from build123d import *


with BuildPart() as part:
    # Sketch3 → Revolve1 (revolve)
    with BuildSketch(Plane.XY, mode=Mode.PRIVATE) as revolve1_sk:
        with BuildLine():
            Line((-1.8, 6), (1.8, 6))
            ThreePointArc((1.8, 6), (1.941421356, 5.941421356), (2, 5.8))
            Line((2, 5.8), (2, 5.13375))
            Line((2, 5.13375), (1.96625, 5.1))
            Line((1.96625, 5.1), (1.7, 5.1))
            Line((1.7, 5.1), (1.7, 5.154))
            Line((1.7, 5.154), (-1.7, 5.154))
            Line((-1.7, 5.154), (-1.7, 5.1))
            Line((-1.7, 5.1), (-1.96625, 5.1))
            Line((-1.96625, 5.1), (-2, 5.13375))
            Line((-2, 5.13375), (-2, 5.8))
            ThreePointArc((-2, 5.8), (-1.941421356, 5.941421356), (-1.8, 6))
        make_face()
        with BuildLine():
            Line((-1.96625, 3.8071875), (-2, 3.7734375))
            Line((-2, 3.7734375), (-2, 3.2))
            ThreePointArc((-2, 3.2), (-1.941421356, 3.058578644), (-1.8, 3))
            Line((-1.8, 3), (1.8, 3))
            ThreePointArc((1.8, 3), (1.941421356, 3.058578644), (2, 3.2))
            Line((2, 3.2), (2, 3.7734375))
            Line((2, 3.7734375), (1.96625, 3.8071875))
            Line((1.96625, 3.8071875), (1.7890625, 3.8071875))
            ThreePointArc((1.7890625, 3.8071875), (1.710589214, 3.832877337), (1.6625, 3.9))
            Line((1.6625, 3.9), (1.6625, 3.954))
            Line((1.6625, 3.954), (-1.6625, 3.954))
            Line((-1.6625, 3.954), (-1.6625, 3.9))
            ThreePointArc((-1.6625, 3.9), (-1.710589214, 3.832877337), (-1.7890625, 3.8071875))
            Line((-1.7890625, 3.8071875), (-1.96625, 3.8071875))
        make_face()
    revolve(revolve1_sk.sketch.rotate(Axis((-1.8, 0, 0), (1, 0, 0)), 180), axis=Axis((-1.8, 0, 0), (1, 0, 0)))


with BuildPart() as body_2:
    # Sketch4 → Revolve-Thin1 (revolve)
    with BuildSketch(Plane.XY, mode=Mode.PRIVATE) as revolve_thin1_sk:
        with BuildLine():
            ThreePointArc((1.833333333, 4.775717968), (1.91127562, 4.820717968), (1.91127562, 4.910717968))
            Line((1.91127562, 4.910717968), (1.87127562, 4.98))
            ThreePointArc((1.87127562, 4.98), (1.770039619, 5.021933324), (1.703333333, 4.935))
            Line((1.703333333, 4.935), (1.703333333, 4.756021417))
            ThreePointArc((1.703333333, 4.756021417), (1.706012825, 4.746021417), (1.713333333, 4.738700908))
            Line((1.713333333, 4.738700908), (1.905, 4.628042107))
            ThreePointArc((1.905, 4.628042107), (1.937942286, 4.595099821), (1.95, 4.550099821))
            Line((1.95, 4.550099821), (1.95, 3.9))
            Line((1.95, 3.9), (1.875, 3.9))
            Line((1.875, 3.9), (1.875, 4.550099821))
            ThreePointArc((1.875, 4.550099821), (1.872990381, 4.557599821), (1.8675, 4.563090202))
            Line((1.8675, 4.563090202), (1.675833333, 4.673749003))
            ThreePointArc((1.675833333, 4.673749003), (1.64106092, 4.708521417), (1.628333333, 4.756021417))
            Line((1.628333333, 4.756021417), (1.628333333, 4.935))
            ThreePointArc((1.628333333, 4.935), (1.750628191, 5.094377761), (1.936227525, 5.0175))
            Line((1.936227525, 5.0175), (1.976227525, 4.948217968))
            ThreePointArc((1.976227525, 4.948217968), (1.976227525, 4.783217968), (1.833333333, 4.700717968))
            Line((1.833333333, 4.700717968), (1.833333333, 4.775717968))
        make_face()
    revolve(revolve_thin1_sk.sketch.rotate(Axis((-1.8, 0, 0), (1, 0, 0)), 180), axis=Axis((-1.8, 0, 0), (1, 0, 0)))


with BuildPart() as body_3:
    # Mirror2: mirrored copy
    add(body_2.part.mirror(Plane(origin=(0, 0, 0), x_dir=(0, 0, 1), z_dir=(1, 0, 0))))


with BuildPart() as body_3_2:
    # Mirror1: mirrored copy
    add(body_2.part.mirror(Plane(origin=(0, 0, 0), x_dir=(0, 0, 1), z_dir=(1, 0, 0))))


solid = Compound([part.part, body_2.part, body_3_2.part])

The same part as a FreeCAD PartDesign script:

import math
import FreeCAD as App
import Part
import Sketcher

V = App.Vector
Q = App.Units.Quantity

doc = App.newDocument("Part")
params = doc.addObject("Spreadsheet::Sheet", "Params")
for row, (alias, value) in enumerate([
    ("sketch1_radius", "0.2 mm"),
    ("sketch1_width", "3.6 mm"),
    ("sketch1_width2", "3.4 mm"),
    ("revolution_angle", "360 deg"),
    ("sketch2_radius", "0.09 mm"),
    ("sketch2_radius2", "0.02 mm"),
    ("sketch2_length", "0.08 mm"),
    ("revolution2_angle", "360 deg"),
], start=1):
    params.set(f"A{row}", alias)
    params.set(f"B{row}", "=" + value)
    params.setAlias(f"B{row}", alias)

body = doc.addObject("PartDesign::Body", "Body")
body.AllowCompound = True

# Sketch on XY plane
sketch1 = body.newObject("Sketcher::SketchObject", "Sketch")
sketch1.AttachmentSupport = (doc.getObject("XY_Plane"), [""])
sketch1.MapMode = "FlatFace"
sketch1.addGeometry(Part.LineSegment(V(1.8, 6, 0), V(-1.8, 6, 0)), False)
sketch1.addGeometry(Part.ArcOfCircle(Part.Circle(V(-1.8, 5.8, 0), V(0, 0, 1), 0.2), math.radians(90), math.radians(180)), False)
sketch1.addGeometry(Part.LineSegment(V(-2, 5.8, 0), V(-2, 5.134, 0)), False)
sketch1.addGeometry(Part.LineSegment(V(-2, 5.134, 0), V(-1.966, 5.1, 0)), False)
sketch1.addGeometry(Part.LineSegment(V(-1.966, 5.1, 0), V(-1.7, 5.1, 0)), False)
sketch1.addGeometry(Part.LineSegment(V(-1.7, 5.1, 0), V(-1.7, 5.154, 0)), False)
sketch1.addGeometry(Part.LineSegment(V(-1.7, 5.154, 0), V(1.7, 5.154, 0)), False)
sketch1.addGeometry(Part.LineSegment(V(1.7, 5.154, 0), V(1.7, 5.1, 0)), False)
sketch1.addGeometry(Part.LineSegment(V(1.7, 5.1, 0), V(1.966, 5.1, 0)), False)
sketch1.addGeometry(Part.LineSegment(V(1.966, 5.1, 0), V(2, 5.134, 0)), False)
sketch1.addGeometry(Part.LineSegment(V(2, 5.134, 0), V(2, 5.8, 0)), False)
sketch1.addGeometry(Part.ArcOfCircle(Part.Circle(V(1.8, 5.8, 0), V(0, 0, 1), 0.2), math.radians(0), math.radians(90)), False)
sketch1.addGeometry(Part.LineSegment(V(-1.966, 3.807, 0), V(-2, 3.773, 0)), False)
sketch1.addGeometry(Part.LineSegment(V(-2, 3.773, 0), V(-2, 3.2, 0)), False)
sketch1.addGeometry(Part.ArcOfCircle(Part.Circle(V(-1.8, 3.2, 0), V(0, 0, 1), 0.2), math.radians(-180), math.radians(-90)), False)
sketch1.addGeometry(Part.LineSegment(V(-1.8, 3, 0), V(1.8, 3, 0)), False)
sketch1.addGeometry(Part.ArcOfCircle(Part.Circle(V(1.8, 3.2, 0), V(0, 0, 1), 0.2), math.radians(-90), math.radians(0)), False)
sketch1.addGeometry(Part.LineSegment(V(2, 3.2, 0), V(2, 3.773, 0)), False)
sketch1.addGeometry(Part.LineSegment(V(2, 3.773, 0), V(1.966, 3.807, 0)), False)
sketch1.addGeometry(Part.LineSegment(V(1.966, 3.807, 0), V(1.789, 3.807, 0)), False)
sketch1.addGeometry(Part.ArcOfCircle(Part.Circle(V(1.789, 3.94, 0), V(0, 0, 1), 0.133), math.radians(-163), math.radians(-90)), False)
sketch1.addGeometry(Part.LineSegment(V(1.663, 3.9, 0), V(1.663, 3.954, 0)), False)
sketch1.addGeometry(Part.LineSegment(V(1.663, 3.954, 0), V(-1.663, 3.954, 0)), False)
sketch1.addGeometry(Part.LineSegment(V(-1.663, 3.954, 0), V(-1.663, 3.9, 0)), False)
sketch1.addGeometry(Part.ArcOfCircle(Part.Circle(V(-1.789, 3.94, 0), V(0, 0, 1), 0.133), math.radians(-90), math.radians(-17)), False)
sketch1.addGeometry(Part.LineSegment(V(-1.789, 3.807, 0), V(-1.966, 3.807, 0)), False)
sketch1.addConstraint(Sketcher.Constraint("Tangent", 0, 2, 1, 1))
sketch1.addConstraint(Sketcher.Constraint("Tangent", 1, 2, 2, 1))
sketch1.addConstraint(Sketcher.Constraint("Coincident", 2, 2, 3, 1))
sketch1.addConstraint(Sketcher.Constraint("Coincident", 3, 2, 4, 1))
sketch1.addConstraint(Sketcher.Constraint("Coincident", 4, 2, 5, 1))
sketch1.addConstraint(Sketcher.Constraint("Coincident", 5, 2, 6, 1))
sketch1.addConstraint(Sketcher.Constraint("Coincident", 6, 2, 7, 1))
sketch1.addConstraint(Sketcher.Constraint("Coincident", 7, 2, 8, 1))
sketch1.addConstraint(Sketcher.Constraint("Coincident", 8, 2, 9, 1))
sketch1.addConstraint(Sketcher.Constraint("Coincident", 9, 2, 10, 1))
sketch1.addConstraint(Sketcher.Constraint("Tangent", 10, 2, 11, 1))
sketch1.addConstraint(Sketcher.Constraint("Tangent", 11, 2, 0, 1))
sketch1.addConstraint(Sketcher.Constraint("Coincident", 12, 2, 13, 1))
sketch1.addConstraint(Sketcher.Constraint("Tangent", 13, 2, 14, 1))
sketch1.addConstraint(Sketcher.Constraint("Tangent", 14, 2, 15, 1))
sketch1.addConstraint(Sketcher.Constraint("Tangent", 15, 2, 16, 1))
sketch1.addConstraint(Sketcher.Constraint("Tangent", 16, 2, 17, 1))
sketch1.addConstraint(Sketcher.Constraint("Coincident", 17, 2, 18, 1))
sketch1.addConstraint(Sketcher.Constraint("Coincident", 18, 2, 19, 1))
sketch1.addConstraint(Sketcher.Constraint("Tangent", 19, 2, 20, 2))
sketch1.addConstraint(Sketcher.Constraint("Coincident", 20, 1, 21, 1))
sketch1.addConstraint(Sketcher.Constraint("Coincident", 21, 2, 22, 1))
sketch1.addConstraint(Sketcher.Constraint("Coincident", 22, 2, 23, 1))
sketch1.addConstraint(Sketcher.Constraint("Coincident", 23, 2, 24, 2))
sketch1.addConstraint(Sketcher.Constraint("Tangent", 24, 1, 25, 1))
sketch1.addConstraint(Sketcher.Constraint("Coincident", 25, 2, 12, 1))
sketch1.addConstraint(Sketcher.Constraint("Horizontal", 0))
sketch1.addConstraint(Sketcher.Constraint("Vertical", 2))
sketch1.addConstraint(Sketcher.Constraint("Horizontal", 4))
sketch1.addConstraint(Sketcher.Constraint("Vertical", 5))
sketch1.addConstraint(Sketcher.Constraint("Horizontal", 6))
sketch1.addConstraint(Sketcher.Constraint("Vertical", 7))
sketch1.addConstraint(Sketcher.Constraint("Horizontal", 8))
sketch1.addConstraint(Sketcher.Constraint("Vertical", 10))
sketch1.addConstraint(Sketcher.Constraint("Vertical", 13))
sketch1.addConstraint(Sketcher.Constraint("Horizontal", 15))
sketch1.addConstraint(Sketcher.Constraint("Vertical", 17))
sketch1.addConstraint(Sketcher.Constraint("Horizontal", 19))
sketch1.addConstraint(Sketcher.Constraint("Vertical", 21))
sketch1.addConstraint(Sketcher.Constraint("Horizontal", 22))
sketch1.addConstraint(Sketcher.Constraint("Vertical", 23))
sketch1.addConstraint(Sketcher.Constraint("Horizontal", 25))
sketch1.addConstraint(Sketcher.Constraint("Equal", 1, 11))
sketch1.addConstraint(Sketcher.Constraint("Equal", 11, 14))
sketch1.addConstraint(Sketcher.Constraint("Equal", 14, 16))
sketch1.addConstraint(Sketcher.Constraint("Equal", 20, 24))
sketch1.addConstraint(Sketcher.Constraint("Symmetric", 20, 3, 24, 3, -2))
sketch1.addConstraint(Sketcher.Constraint("Symmetric", 4, 2, 7, 2, -2))
sketch1.addConstraint(Sketcher.Constraint("Symmetric", 2, 2, 9, 2, -2))
sketch1.addConstraint(Sketcher.Constraint("Symmetric", 12, 2, 17, 2, -2))
sketch1.addConstraint(Sketcher.Constraint("Perpendicular", 3, 9))
sketch1.addConstraint(Sketcher.Constraint("Parallel", 9, 12))
sketch1.addConstraint(Sketcher.Constraint("Perpendicular", 12, 18))
sketch1.addConstraint(Sketcher.Constraint("Horizontal", 20, 1, 23, 2))
sketch1.addConstraint(Sketcher.Constraint("Vertical", 1, 3, 14, 3))
sketch1.addConstraint(Sketcher.Constraint("Vertical", 8, 2, 18, 2))
sketch1.addConstraint(Sketcher.Constraint("Vertical", 3, 2, 25, 2))
sketch1.addConstraint(Sketcher.Constraint("Equal", 7, 21))
sketch1.addConstraint(Sketcher.Constraint("Radius", 1, 0.2))
sketch1.addConstraint(Sketcher.Constraint("DistanceX", 0, 2, 0, 1, 3.6))
sketch1.addConstraint(Sketcher.Constraint("DistanceX", 6, 1, 6, 2, 3.4))
sketch1.addConstraint(Sketcher.Constraint("DistanceY", -1, 1, 0, 2, 6.0))
sketch1.addConstraint(Sketcher.Constraint("DistanceY", -1, 1, 14, 2, 3.0))
sketch1.addConstraint(Sketcher.Constraint("DistanceY", -1, 1, 3, 2, 5.1))
sketch1.addConstraint(Sketcher.Constraint("DistanceY", -1, 1, 20, 1, 3.9))
sketch1.addConstraint(Sketcher.Constraint("Radius", 20, 0.132699))
sketch1.addConstraint(Sketcher.Constraint("DistanceX", 22, 2, 22, 1, 3.325))
sketch1.addConstraint(Sketcher.Constraint("DistanceY", 5, 1, 5, 2, 0.054))
sketch1.addConstraint(Sketcher.Constraint("DistanceX", 4, 1, 4, 2, 0.26625))
sketch1.addConstraint(Sketcher.Constraint("DistanceX", 19, 2, 19, 1, 0.177188))
sketch1.setExpression("Constraints[58]", "Params.sketch1_radius")
sketch1.setExpression("Constraints[59]", "Params.sketch1_width")
sketch1.setExpression("Constraints[60]", "Params.sketch1_width2")
revolution = body.newObject("PartDesign::Revolution", "Revolution")
revolution.Profile = sketch1
revolution.ReferenceAxis = (sketch1, ["H_Axis"])
revolution.setExpression("Angle", "Params.revolution_angle")
body2 = doc.addObject("PartDesign::Body", "Body001")

# Sketch on XY plane
sketch2 = body2.newObject("Sketcher::SketchObject", "Sketch001")
sketch2.AttachmentSupport = (doc.getObject("XY_Plane001"), [""])
sketch2.MapMode = "FlatFace"
sketch2.addGeometry(Part.ArcOfCircle(Part.Circle(V(1.833, 4.866, 0), V(0, 0, 1), 0.09), math.radians(-90), math.radians(30)), False)
sketch2.addGeometry(Part.LineSegment(V(1.833, 4.776, 0), V(1.833, 4.701, 0)), False)
sketch2.addGeometry(Part.ArcOfCircle(Part.Circle(V(1.833, 4.866, 0), V(0, 0, 1), 0.165), math.radians(-90), math.radians(30)), False)
sketch2.addGeometry(Part.LineSegment(V(1.976, 4.948, 0), V(1.936, 5.018, 0)), False)
sketch2.addGeometry(Part.ArcOfCircle(Part.Circle(V(1.793, 4.935, 0), V(0, 0, 1), 0.165), math.radians(30), math.radians(180)), False)
sketch2.addGeometry(Part.LineSegment(V(1.628, 4.935, 0), V(1.628, 4.756, 0)), False)
sketch2.addGeometry(Part.ArcOfCircle(Part.Circle(V(1.723, 4.756, 0), V(0, 0, 1), 0.095), math.radians(-180), math.radians(-120)), False)
sketch2.addGeometry(Part.LineSegment(V(1.676, 4.674, 0), V(1.867, 4.563, 0)), False)
sketch2.addGeometry(Part.ArcOfCircle(Part.Circle(V(1.86, 4.55, 0), V(0, 0, 1), 0.015), math.radians(0), math.radians(60)), False)
sketch2.addGeometry(Part.LineSegment(V(1.875, 4.55, 0), V(1.875, 3.9, 0)), False)
sketch2.addGeometry(Part.LineSegment(V(1.875, 3.9, 0), V(1.95, 3.9, 0)), False)
sketch2.addGeometry(Part.LineSegment(V(1.95, 3.9, 0), V(1.95, 4.55, 0)), False)
sketch2.addGeometry(Part.ArcOfCircle(Part.Circle(V(1.86, 4.55, 0), V(0, 0, 1), 0.09), math.radians(0), math.radians(60)), False)
sketch2.addGeometry(Part.LineSegment(V(1.905, 4.628, 0), V(1.713, 4.739, 0)), False)
sketch2.addGeometry(Part.ArcOfCircle(Part.Circle(V(1.723, 4.756, 0), V(0, 0, 1), 0.02), math.radians(-180), math.radians(-120)), False)
sketch2.addGeometry(Part.LineSegment(V(1.703, 4.756, 0), V(1.703, 4.935, 0)), False)
sketch2.addGeometry(Part.ArcOfCircle(Part.Circle(V(1.793, 4.935, 0), V(0, 0, 1), 0.09), math.radians(30), math.radians(180)), False)
sketch2.addGeometry(Part.LineSegment(V(1.871, 4.98, 0), V(1.911, 4.911, 0)), False)
sketch2.addConstraint(Sketcher.Constraint("Coincident", 0, 1, 1, 1))
sketch2.addConstraint(Sketcher.Constraint("Coincident", 1, 2, 2, 1))
sketch2.addConstraint(Sketcher.Constraint("Tangent", 2, 2, 3, 1))
sketch2.addConstraint(Sketcher.Constraint("Tangent", 3, 2, 4, 1))
sketch2.addConstraint(Sketcher.Constraint("Tangent", 4, 2, 5, 1))
sketch2.addConstraint(Sketcher.Constraint("Tangent", 5, 2, 6, 1))
sketch2.addConstraint(Sketcher.Constraint("Tangent", 6, 2, 7, 1))
sketch2.addConstraint(Sketcher.Constraint("Tangent", 7, 2, 8, 2))
sketch2.addConstraint(Sketcher.Constraint("Tangent", 8, 1, 9, 1))
sketch2.addConstraint(Sketcher.Constraint("Coincident", 9, 2, 10, 1))
sketch2.addConstraint(Sketcher.Constraint("Coincident", 10, 2, 11, 1))
sketch2.addConstraint(Sketcher.Constraint("Tangent", 11, 2, 12, 1))
sketch2.addConstraint(Sketcher.Constraint("Tangent", 12, 2, 13, 1))
sketch2.addConstraint(Sketcher.Constraint("Tangent", 13, 2, 14, 2))
sketch2.addConstraint(Sketcher.Constraint("Tangent", 14, 1, 15, 1))
sketch2.addConstraint(Sketcher.Constraint("Tangent", 15, 2, 16, 2))
sketch2.addConstraint(Sketcher.Constraint("Tangent", 16, 1, 17, 1))
sketch2.addConstraint(Sketcher.Constraint("Tangent", 17, 2, 0, 2))
sketch2.addConstraint(Sketcher.Constraint("Vertical", 1))
sketch2.addConstraint(Sketcher.Constraint("Vertical", 5))
sketch2.addConstraint(Sketcher.Constraint("Vertical", 9))
sketch2.addConstraint(Sketcher.Constraint("Horizontal", 10))
sketch2.addConstraint(Sketcher.Constraint("Vertical", 11))
sketch2.addConstraint(Sketcher.Constraint("Vertical", 15))
sketch2.addConstraint(Sketcher.Constraint("Coincident", 2, 3, 0, 3))
sketch2.addConstraint(Sketcher.Constraint("Coincident", 12, 3, 8, 3))
sketch2.addConstraint(Sketcher.Constraint("Coincident", 14, 3, 6, 3))
sketch2.addConstraint(Sketcher.Constraint("Coincident", 16, 3, 4, 3))
sketch2.addConstraint(Sketcher.Constraint("Equal", 2, 4))
sketch2.addConstraint(Sketcher.Constraint("Equal", 0, 12))
sketch2.addConstraint(Sketcher.Constraint("Equal", 12, 16))
sketch2.addConstraint(Sketcher.Constraint("Parallel", 7, 13))
sketch2.addConstraint(Sketcher.Constraint("Vertical", 2, 3, 0, 1))
sketch2.addConstraint(Sketcher.Constraint("Angle", 3, Q("120 deg")))
sketch2.addConstraint(Sketcher.Constraint("Angle", 7, Q("-30 deg")))
sketch2.addConstraint(Sketcher.Constraint("Radius", 0, 0.09))
sketch2.addConstraint(Sketcher.Constraint("Radius", 14, 0.02))
sketch2.addConstraint(Sketcher.Constraint("Radius", 2, 0.165))
sketch2.addConstraint(Sketcher.Constraint("DistanceY", -1, 1, 9, 2, 3.9))
sketch2.addConstraint(Sketcher.Constraint("Distance", 3, 0.08))
sketch2.addConstraint(Sketcher.Constraint("DistanceX", -1, 1, 8, 3, 1.86))
sketch2.addConstraint(Sketcher.Constraint("DistanceY", -1, 1, 16, 1, 4.98))
sketch2.addConstraint(Sketcher.Constraint("DistanceY", 9, 2, 9, 1, 0.6501))
sketch2.addConstraint(Sketcher.Constraint("DistanceY", 5, 2, 5, 1, 0.178979))
sketch2.setExpression("Constraints[35]", "Params.sketch2_radius")
sketch2.setExpression("Constraints[36]", "Params.sketch2_radius2")
sketch2.setExpression("Constraints[39]", "Params.sketch2_length")
revolution2 = body2.newObject("PartDesign::Revolution", "Revolution001")
revolution2.Profile = sketch2
revolution2.ReferenceAxis = (sketch2, ["H_Axis"])
revolution2.setExpression("Angle", "Params.revolution2_angle")
body3 = doc.addObject("PartDesign::Body", "Body002")
doc.recompute()

mirroring = doc.addObject("Part::Mirroring", "Mirroring")
mirroring.Source = body2
mirroring.Base = V(0, 0, 0)
mirroring.Normal = V(1, 0, 0)
body3.BaseFeature = mirroring
doc.recompute()
body4 = doc.addObject("PartDesign::Body", "Body003")
doc.recompute()

mirroring2 = doc.addObject("Part::Mirroring", "Mirroring001")
mirroring2.Source = body2
mirroring2.Base = V(0, 0, 0)
mirroring2.Normal = V(1, 0, 0)
body4.BaseFeature = mirroring2
doc.recompute()
body3.Visibility = False
mirroring.Visibility = False
mirroring2.Visibility = False

doc.recompute()
